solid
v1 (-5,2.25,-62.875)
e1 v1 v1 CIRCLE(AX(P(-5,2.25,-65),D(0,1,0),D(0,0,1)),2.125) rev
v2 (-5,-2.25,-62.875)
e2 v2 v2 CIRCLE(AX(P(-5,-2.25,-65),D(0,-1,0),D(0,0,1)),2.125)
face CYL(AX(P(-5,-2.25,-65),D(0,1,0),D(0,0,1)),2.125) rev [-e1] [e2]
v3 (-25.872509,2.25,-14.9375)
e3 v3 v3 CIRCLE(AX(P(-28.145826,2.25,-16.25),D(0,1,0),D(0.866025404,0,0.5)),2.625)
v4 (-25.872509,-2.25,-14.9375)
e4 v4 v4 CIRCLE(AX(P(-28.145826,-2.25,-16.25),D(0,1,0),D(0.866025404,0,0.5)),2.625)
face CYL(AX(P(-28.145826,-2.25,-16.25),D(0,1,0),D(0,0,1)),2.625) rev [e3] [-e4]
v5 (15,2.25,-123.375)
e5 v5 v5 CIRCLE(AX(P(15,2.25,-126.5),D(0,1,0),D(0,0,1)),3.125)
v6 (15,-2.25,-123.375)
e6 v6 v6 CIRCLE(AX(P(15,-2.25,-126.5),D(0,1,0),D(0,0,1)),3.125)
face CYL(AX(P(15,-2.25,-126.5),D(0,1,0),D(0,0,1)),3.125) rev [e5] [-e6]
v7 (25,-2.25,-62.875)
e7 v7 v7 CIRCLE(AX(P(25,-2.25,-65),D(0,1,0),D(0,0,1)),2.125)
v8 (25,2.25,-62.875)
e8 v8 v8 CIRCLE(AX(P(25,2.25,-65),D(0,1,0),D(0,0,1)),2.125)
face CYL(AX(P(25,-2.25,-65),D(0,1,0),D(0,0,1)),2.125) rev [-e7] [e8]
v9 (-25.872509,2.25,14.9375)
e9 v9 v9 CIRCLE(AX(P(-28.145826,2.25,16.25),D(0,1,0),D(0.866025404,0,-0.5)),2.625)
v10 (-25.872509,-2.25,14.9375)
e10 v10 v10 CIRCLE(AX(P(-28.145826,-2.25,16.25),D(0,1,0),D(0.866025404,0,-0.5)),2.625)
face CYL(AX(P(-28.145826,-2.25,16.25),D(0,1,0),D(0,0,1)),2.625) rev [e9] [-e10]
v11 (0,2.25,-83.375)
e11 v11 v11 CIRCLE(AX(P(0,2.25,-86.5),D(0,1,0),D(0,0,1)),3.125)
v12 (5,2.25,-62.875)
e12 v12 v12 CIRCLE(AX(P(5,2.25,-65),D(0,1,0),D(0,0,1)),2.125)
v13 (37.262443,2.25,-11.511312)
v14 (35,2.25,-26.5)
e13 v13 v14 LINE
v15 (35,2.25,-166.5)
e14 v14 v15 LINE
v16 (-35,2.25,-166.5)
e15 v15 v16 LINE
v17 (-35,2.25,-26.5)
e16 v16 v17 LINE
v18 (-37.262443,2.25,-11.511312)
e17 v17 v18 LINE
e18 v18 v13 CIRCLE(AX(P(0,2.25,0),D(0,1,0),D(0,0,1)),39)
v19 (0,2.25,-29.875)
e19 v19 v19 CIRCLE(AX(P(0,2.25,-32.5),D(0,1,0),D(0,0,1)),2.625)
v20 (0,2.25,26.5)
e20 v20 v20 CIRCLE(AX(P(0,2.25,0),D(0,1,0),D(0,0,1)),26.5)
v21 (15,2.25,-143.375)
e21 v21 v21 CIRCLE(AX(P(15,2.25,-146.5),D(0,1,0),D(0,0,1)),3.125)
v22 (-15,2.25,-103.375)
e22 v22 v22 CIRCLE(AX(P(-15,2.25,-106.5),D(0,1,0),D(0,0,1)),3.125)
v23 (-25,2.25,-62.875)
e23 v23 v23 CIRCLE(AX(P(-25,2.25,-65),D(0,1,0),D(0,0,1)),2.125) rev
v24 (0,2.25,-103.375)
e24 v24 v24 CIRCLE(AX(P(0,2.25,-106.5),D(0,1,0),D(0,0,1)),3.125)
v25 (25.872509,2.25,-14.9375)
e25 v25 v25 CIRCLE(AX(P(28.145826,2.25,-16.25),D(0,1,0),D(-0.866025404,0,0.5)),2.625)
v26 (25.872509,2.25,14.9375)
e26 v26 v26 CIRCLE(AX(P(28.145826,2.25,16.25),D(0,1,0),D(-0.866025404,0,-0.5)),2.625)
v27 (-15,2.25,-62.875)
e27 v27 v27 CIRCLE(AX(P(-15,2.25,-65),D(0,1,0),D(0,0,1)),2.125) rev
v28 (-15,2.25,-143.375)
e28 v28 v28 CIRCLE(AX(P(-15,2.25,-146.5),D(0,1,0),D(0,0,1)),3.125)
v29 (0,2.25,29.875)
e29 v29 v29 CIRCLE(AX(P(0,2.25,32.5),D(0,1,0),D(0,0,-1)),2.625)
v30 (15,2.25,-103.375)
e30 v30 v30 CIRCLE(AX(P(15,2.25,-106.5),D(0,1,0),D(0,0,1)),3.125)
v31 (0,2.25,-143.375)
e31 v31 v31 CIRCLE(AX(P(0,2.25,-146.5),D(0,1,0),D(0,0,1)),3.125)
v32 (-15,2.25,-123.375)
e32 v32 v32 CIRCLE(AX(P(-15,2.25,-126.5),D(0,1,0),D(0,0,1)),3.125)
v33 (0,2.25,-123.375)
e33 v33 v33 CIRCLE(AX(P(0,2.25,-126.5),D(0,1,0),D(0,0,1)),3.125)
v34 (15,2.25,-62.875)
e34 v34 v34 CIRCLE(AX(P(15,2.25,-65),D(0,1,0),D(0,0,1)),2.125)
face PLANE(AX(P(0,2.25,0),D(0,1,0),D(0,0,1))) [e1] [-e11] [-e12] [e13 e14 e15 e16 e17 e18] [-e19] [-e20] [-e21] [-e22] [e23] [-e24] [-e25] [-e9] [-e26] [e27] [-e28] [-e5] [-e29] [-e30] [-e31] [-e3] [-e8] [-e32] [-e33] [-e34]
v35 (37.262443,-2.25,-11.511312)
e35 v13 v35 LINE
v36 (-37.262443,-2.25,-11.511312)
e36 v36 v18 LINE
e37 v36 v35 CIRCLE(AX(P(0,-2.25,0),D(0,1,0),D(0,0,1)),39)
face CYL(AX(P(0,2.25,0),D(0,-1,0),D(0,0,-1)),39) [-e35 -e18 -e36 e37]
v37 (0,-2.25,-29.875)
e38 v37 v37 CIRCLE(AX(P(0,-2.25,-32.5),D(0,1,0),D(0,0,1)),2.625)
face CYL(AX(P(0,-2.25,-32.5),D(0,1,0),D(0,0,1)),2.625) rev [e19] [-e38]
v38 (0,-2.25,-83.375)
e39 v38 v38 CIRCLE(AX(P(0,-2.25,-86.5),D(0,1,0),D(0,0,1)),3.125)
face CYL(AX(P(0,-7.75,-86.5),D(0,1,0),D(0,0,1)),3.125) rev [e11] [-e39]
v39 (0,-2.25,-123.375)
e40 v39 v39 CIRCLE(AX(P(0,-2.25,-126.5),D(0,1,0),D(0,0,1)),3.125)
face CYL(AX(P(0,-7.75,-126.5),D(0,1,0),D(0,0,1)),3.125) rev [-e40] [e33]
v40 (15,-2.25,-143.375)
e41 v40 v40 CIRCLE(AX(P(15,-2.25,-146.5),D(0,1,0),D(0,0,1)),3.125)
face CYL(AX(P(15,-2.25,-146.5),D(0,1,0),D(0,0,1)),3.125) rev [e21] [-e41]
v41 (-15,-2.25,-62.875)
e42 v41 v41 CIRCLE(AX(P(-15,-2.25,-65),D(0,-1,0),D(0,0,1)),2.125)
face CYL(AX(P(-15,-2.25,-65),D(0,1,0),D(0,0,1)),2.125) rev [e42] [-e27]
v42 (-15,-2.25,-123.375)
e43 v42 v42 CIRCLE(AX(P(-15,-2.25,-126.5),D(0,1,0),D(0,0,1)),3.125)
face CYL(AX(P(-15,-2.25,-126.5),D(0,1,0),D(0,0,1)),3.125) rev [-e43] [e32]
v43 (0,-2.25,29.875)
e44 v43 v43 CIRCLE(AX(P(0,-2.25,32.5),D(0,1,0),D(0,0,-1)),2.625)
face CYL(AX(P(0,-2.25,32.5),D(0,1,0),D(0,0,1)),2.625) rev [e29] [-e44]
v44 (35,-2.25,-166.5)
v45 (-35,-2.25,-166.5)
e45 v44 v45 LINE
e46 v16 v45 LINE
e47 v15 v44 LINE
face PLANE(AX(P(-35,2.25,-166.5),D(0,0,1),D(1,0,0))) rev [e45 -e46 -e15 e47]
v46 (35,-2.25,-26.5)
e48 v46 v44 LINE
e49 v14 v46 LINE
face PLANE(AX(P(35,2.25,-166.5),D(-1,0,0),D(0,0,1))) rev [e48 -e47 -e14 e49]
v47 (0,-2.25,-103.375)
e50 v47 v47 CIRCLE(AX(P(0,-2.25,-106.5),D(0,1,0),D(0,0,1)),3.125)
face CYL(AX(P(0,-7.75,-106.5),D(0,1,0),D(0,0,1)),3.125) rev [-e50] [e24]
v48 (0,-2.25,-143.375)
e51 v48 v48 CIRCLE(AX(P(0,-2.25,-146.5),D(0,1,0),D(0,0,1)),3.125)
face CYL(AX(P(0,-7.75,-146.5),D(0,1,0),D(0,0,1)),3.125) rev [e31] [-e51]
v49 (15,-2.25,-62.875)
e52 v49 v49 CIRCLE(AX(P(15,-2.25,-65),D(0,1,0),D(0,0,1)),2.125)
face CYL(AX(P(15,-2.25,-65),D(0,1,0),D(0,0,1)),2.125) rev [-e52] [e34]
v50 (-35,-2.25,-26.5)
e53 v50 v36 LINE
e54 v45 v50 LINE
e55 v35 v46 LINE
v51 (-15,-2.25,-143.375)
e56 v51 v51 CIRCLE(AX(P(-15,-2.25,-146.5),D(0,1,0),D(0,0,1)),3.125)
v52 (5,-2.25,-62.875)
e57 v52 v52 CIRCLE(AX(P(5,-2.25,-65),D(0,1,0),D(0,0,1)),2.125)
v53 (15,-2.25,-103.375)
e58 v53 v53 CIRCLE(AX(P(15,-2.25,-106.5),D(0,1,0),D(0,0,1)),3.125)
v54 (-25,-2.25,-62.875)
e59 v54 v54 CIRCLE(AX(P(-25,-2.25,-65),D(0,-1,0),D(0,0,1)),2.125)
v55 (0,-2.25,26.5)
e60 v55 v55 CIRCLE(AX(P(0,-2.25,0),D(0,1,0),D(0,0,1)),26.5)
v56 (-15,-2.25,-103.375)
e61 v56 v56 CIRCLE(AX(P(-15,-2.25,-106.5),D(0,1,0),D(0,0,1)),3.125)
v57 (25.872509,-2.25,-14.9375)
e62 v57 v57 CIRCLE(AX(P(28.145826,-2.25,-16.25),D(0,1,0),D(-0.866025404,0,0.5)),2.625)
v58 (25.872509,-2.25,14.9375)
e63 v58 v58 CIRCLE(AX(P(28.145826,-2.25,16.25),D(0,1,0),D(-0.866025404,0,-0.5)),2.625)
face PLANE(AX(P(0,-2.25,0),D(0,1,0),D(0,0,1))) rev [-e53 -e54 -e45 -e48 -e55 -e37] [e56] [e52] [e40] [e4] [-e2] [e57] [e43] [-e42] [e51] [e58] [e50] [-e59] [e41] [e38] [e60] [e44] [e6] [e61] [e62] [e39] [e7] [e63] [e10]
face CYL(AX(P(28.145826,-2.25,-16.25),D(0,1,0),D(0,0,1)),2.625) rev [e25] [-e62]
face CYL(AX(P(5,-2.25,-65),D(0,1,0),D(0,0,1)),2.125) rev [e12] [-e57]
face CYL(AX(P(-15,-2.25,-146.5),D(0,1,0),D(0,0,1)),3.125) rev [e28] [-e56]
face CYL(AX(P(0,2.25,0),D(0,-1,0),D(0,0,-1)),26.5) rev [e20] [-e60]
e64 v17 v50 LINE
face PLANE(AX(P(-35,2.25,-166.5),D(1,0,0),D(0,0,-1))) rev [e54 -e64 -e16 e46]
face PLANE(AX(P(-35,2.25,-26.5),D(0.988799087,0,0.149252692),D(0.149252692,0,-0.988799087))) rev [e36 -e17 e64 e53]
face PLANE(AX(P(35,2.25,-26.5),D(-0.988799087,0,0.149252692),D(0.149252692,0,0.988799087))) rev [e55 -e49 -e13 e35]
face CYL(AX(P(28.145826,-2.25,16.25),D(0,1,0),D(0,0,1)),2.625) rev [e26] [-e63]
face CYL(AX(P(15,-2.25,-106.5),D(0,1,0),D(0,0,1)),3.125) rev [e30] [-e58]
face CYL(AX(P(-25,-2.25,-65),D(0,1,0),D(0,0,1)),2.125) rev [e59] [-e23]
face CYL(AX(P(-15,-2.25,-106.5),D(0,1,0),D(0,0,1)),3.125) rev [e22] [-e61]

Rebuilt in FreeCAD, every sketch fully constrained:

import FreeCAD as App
import Part
import Sketcher
from FreeCAD import Vector


def add_polygon(sketch, points):
    """Adds a closed chain of lines whose ends are joined by coincident constraints."""
    first, n = sketch.GeometryCount, len(points)
    for a, b in zip(points, points[1:] + points[:1]):
        sketch.addGeometry(Part.LineSegment(App.Vector(*a, 0), App.Vector(*b, 0)), False)
    for i in range(n):
        sketch.addConstraint(Sketcher.Constraint("Coincident", first + i, 2, first + (i + 1) % n, 1))

doc = App.newDocument("Part")
body = doc.addObject("PartDesign::Body", "Body")

# Sketch on XZ plane
sketch1 = body.newObject("Sketcher::SketchObject", "Sketch")
sketch1.AttachmentSupport = (doc.getObject("XZ_Plane"), [""])
sketch1.MapMode = "FlatFace"
sketch1.addGeometry(Part.Circle(Vector(0, 0, 0), Vector(0, 0, 1), 39), False)
sketch1.addGeometry(Part.Circle(Vector(0, 0, 0), Vector(0, 0, 1), 26), False)
sketch1.addConstraint(Sketcher.Constraint("Coincident", 0, 3, -1, 1))
sketch1.addConstraint(Sketcher.Constraint("Coincident", 1, 3, -1, 1))
sketch1.addConstraint(Sketcher.Constraint("Diameter", 0, 78.0))
sketch1.addConstraint(Sketcher.Constraint("Diameter", 1, 53.0))
pad1 = body.newObject("PartDesign::Pad", "Pad")
pad1.Profile = sketch1
pad1.Length = 4.5
pad1.Midplane = True

# Sketch on XZ plane
sketch2 = body.newObject("Sketcher::SketchObject", "Sketch001")
sketch2.AttachmentSupport = (doc.getObject("XZ_Plane"), [""])
sketch2.MapMode = "FlatFace"
add_polygon(sketch2, [(-25, -78), (-25, -26), (25, -26), (25, -78)])  # lines 0-3
sketch2.addConstraint(Sketcher.Constraint("Vertical", 0))
sketch2.addConstraint(Sketcher.Constraint("Horizontal", 1))
sketch2.addConstraint(Sketcher.Constraint("Vertical", 2))
sketch2.addConstraint(Sketcher.Constraint("Horizontal", 3))
sketch2.addConstraint(Sketcher.Constraint("DistanceX", 1, 1, 1, 2, 50.0))
sketch2.addConstraint(Sketcher.Constraint("DistanceY", 0, 1, 0, 2, 51.5))
sketch2.addConstraint(Sketcher.Constraint("DistanceX", 0, 2, -1, 1, 25.0))
sketch2.addConstraint(Sketcher.Constraint("DistanceY", 2, 2, -1, 1, 78.0))
pad2 = body.newObject("PartDesign::Pad", "Pad001")
pad2.Profile = sketch2
pad2.Length = 4.5
pad2.Midplane = True

# Sketch on XZ plane
sketch3 = body.newObject("Sketcher::SketchObject", "Sketch002")
sketch3.AttachmentSupport = (doc.getObject("XZ_Plane"), [""])
sketch3.MapMode = "FlatFace"
add_polygon(sketch3, [(-35, -166), (-35, -26), (-39, 0), (-15, -26), (17, -26), (39, 0), (35, -26), (35, -166)])  # lines 0-7
sketch3.addConstraint(Sketcher.Constraint("Vertical", 0))
sketch3.addConstraint(Sketcher.Constraint("Horizontal", 3))
sketch3.addConstraint(Sketcher.Constraint("Vertical", 6))
sketch3.addConstraint(Sketcher.Constraint("Horizontal", 7))
sketch3.addConstraint(Sketcher.Constraint("Symmetric", 1, 2, 4, 2, -1, 1))
sketch3.addConstraint(Sketcher.Constraint("Symmetric", 0, 2, 5, 2, -2))
sketch3.addConstraint(Sketcher.Constraint("PointOnObject", 1, 2, -1))
sketch3.addConstraint(Sketcher.Constraint("Horizontal", 0, 2, 2, 2))
sketch3.addConstraint(Sketcher.Constraint("DistanceX", 7, 2, 7, 1, 70.0))
sketch3.addConstraint(Sketcher.Constraint("DistanceY", 0, 1, 0, 2, 140.0))
sketch3.addConstraint(Sketcher.Constraint("DistanceX", 1, 2, -1, 1, 39.0))
sketch3.addConstraint(Sketcher.Constraint("DistanceY", 0, 2, -1, 1, 26.5))
sketch3.addConstraint(Sketcher.Constraint("DistanceX", 3, 1, 3, 2, 31.502348))
sketch3.addConstraint(Sketcher.Constraint("Distance", 2, 35.765034))
pad3 = body.newObject("PartDesign::Pad", "Pad002")
pad3.Profile = sketch3
pad3.Length = 4.5
pad3.Midplane = True

# Sketch on XZ plane
sketch4 = body.newObject("Sketcher::SketchObject", "Sketch003")
sketch4.AttachmentSupport = (doc.getObject("XZ_Plane"), [""])
sketch4.MapMode = "FlatFace"
sketch4.addGeometry(Part.Circle(Vector(0, -32.5, 0), Vector(0, 0, 1), 2.6), False)
sketch4.addConstraint(Sketcher.Constraint("PointOnObject", 0, 3, -2))
sketch4.addConstraint(Sketcher.Constraint("Diameter", 0, 5.25))
sketch4.addConstraint(Sketcher.Constraint("DistanceY", 0, 3, -1, 1, 32.5))
pocket1 = body.newObject("PartDesign::Pocket", "Pocket")
pocket1.Profile = sketch4
pocket1.Length = 6.5
pocket1.Midplane = True
doc.recompute()

polarpattern = body.newObject("PartDesign::PolarPattern", "PolarPattern")
polarpattern.Originals = [pocket1]
polarpattern.Axis = (doc.getObject("Y_Axis"), [""])
polarpattern.Angle = 360
polarpattern.Occurrences = 6
body.Tip = polarpattern

# Sketch on XZ plane
sketch5 = body.newObject("Sketcher::SketchObject", "Sketch004")
sketch5.AttachmentSupport = (doc.getObject("XZ_Plane"), [""])
sketch5.MapMode = "FlatFace"
sketch5.AttachmentOffset = App.Placement(Vector(0, 0, 3.25), App.Rotation())
sketch5.addGeometry(Part.Circle(Vector(-15, -146.5, 0), Vector(0, 0, 1), 3.1), False)
sketch5.addGeometry(Part.Circle(Vector(15, -146.5, 0), Vector(0, 0, 1), 3.1), False)
sketch5.addConstraint(Sketcher.Constraint("Equal", 0, 1))
sketch5.addConstraint(Sketcher.Constraint("Symmetric", 0, 3, 1, 3, -2))
sketch5.addConstraint(Sketcher.Constraint("Diameter", 0, 6.25))
sketch5.addConstraint(Sketcher.Constraint("DistanceX", 0, 3, -1, 1, 15.0))
sketch5.addConstraint(Sketcher.Constraint("DistanceY", 0, 3, -1, 1, 146.5))
pocket2 = body.newObject("PartDesign::Pocket", "Pocket001")
pocket2.Profile = sketch5
pocket2.Length = 6.5
doc.recompute()

linearpattern = body.newObject("PartDesign::LinearPattern", "LinearPattern")
linearpattern.Originals = [pocket2]
linearpattern.Direction = (doc.getObject("Z_Axis"), [""])
linearpattern.Mode = "offset"
linearpattern.Offset = 20
linearpattern.Occurrences = 3
body.Tip = linearpattern

# Sketch on XZ plane
sketch6 = body.newObject("Sketcher::SketchObject", "Sketch005")
sketch6.AttachmentSupport = (doc.getObject("XZ_Plane"), [""])
sketch6.MapMode = "FlatFace"
sketch6.AttachmentOffset = App.Placement(Vector(0, 0, -2.25), App.Rotation())
sketch6.addGeometry(Part.Circle(Vector(0, -146.5, 0), Vector(0, 0, 1), 3.1), False)
sketch6.addConstraint(Sketcher.Constraint("PointOnObject", 0, 3, -2))
sketch6.addConstraint(Sketcher.Constraint("Diameter", 0, 6.25))
sketch6.addConstraint(Sketcher.Constraint("DistanceY", 0, 3, -1, 1, 146.5))
pocket3 = body.newObject("PartDesign::Pocket", "Pocket002")
pocket3.Profile = sketch6
pocket3.Length = 10
pocket3.Reversed = True
doc.recompute()

linearpattern2 = body.newObject("PartDesign::LinearPattern", "LinearPattern001")
linearpattern2.Originals = [pocket3]
linearpattern2.Direction = (doc.getObject("Z_Axis"), [""])
linearpattern2.Mode = "offset"
linearpattern2.Offset = 20
linearpattern2.Occurrences = 4
body.Tip = linearpattern2

# Sketch on XZ plane
sketch7 = body.newObject("Sketcher::SketchObject", "Sketch006")
sketch7.AttachmentSupport = (doc.getObject("XZ_Plane"), [""])
sketch7.MapMode = "FlatFace"
sketch7.AttachmentOffset = App.Placement(Vector(0, 0, 3.25), App.Rotation())
sketch7.addGeometry(Part.Circle(Vector(25, -65, 0), Vector(0, 0, 1), 2.1), False)
sketch7.addConstraint(Sketcher.Constraint("Diameter", 0, 4.25))
sketch7.addConstraint(Sketcher.Constraint("DistanceX", -1, 1, 0, 3, 25.0))
sketch7.addConstraint(Sketcher.Constraint("DistanceY", 0, 3, -1, 1, 65.0))
pocket4 = body.newObject("PartDesign::Pocket", "Pocket003")
pocket4.Profile = sketch7
pocket4.Length = 6.5
doc.recompute()

linearpattern3 = body.newObject("PartDesign::LinearPattern", "LinearPattern002")
linearpattern3.Originals = [pocket4]
linearpattern3.Direction = (doc.getObject("X_Axis"), [""])
linearpattern3.Mode = "offset"
linearpattern3.Offset = 10
linearpattern3.Occurrences = 3
linearpattern3.Reversed = True
body.Tip = linearpattern3
doc.recompute()

mirrored = body.newObject("PartDesign::Mirrored", "Mirrored")
mirrored.Originals = [pocket4]
mirrored.MirrorPlane = (doc.getObject("YZ_Plane"), [""])
body.Tip = mirrored

# Sketch on XZ plane
sketch8 = body.newObject("Sketcher::SketchObject", "Sketch007")
sketch8.AttachmentSupport = (doc.getObject("XZ_Plane"), [""])
sketch8.MapMode = "FlatFace"
sketch8.AttachmentOffset = App.Placement(Vector(0, 0, 3.25), App.Rotation())
sketch8.addGeometry(Part.Circle(Vector(-15, -65, 0), Vector(0, 0, 1), 2.1), False)
sketch8.addConstraint(Sketcher.Constraint("Diameter", 0, 4.25))
sketch8.addConstraint(Sketcher.Constraint("DistanceX", 0, 3, -1, 1, 15.0))
sketch8.addConstraint(Sketcher.Constraint("DistanceY", 0, 3, -1, 1, 65.0))
pocket5 = body.newObject("PartDesign::Pocket", "Pocket004")
pocket5.Profile = sketch8
pocket5.Length = 6.5

# Sketch on XZ plane
sketch9 = body.newObject("Sketcher::SketchObject", "Sketch008")
sketch9.AttachmentSupport = (doc.getObject("XZ_Plane"), [""])
sketch9.MapMode = "FlatFace"
sketch9.AttachmentOffset = App.Placement(Vector(0, 0, 3.25), App.Rotation())
sketch9.addGeometry(Part.Circle(Vector(-5, -65, 0), Vector(0, 0, 1), 2.1), False)
sketch9.addConstraint(Sketcher.Constraint("Diameter", 0, 4.25))
sketch9.addConstraint(Sketcher.Constraint("DistanceX", 0, 3, -1, 1, 5.0))
sketch9.addConstraint(Sketcher.Constraint("DistanceY", 0, 3, -1, 1, 65.0))
pocket6 = body.newObject("PartDesign::Pocket", "Pocket005")
pocket6.Profile = sketch9
pocket6.Length = 6.5

doc.recompute()
